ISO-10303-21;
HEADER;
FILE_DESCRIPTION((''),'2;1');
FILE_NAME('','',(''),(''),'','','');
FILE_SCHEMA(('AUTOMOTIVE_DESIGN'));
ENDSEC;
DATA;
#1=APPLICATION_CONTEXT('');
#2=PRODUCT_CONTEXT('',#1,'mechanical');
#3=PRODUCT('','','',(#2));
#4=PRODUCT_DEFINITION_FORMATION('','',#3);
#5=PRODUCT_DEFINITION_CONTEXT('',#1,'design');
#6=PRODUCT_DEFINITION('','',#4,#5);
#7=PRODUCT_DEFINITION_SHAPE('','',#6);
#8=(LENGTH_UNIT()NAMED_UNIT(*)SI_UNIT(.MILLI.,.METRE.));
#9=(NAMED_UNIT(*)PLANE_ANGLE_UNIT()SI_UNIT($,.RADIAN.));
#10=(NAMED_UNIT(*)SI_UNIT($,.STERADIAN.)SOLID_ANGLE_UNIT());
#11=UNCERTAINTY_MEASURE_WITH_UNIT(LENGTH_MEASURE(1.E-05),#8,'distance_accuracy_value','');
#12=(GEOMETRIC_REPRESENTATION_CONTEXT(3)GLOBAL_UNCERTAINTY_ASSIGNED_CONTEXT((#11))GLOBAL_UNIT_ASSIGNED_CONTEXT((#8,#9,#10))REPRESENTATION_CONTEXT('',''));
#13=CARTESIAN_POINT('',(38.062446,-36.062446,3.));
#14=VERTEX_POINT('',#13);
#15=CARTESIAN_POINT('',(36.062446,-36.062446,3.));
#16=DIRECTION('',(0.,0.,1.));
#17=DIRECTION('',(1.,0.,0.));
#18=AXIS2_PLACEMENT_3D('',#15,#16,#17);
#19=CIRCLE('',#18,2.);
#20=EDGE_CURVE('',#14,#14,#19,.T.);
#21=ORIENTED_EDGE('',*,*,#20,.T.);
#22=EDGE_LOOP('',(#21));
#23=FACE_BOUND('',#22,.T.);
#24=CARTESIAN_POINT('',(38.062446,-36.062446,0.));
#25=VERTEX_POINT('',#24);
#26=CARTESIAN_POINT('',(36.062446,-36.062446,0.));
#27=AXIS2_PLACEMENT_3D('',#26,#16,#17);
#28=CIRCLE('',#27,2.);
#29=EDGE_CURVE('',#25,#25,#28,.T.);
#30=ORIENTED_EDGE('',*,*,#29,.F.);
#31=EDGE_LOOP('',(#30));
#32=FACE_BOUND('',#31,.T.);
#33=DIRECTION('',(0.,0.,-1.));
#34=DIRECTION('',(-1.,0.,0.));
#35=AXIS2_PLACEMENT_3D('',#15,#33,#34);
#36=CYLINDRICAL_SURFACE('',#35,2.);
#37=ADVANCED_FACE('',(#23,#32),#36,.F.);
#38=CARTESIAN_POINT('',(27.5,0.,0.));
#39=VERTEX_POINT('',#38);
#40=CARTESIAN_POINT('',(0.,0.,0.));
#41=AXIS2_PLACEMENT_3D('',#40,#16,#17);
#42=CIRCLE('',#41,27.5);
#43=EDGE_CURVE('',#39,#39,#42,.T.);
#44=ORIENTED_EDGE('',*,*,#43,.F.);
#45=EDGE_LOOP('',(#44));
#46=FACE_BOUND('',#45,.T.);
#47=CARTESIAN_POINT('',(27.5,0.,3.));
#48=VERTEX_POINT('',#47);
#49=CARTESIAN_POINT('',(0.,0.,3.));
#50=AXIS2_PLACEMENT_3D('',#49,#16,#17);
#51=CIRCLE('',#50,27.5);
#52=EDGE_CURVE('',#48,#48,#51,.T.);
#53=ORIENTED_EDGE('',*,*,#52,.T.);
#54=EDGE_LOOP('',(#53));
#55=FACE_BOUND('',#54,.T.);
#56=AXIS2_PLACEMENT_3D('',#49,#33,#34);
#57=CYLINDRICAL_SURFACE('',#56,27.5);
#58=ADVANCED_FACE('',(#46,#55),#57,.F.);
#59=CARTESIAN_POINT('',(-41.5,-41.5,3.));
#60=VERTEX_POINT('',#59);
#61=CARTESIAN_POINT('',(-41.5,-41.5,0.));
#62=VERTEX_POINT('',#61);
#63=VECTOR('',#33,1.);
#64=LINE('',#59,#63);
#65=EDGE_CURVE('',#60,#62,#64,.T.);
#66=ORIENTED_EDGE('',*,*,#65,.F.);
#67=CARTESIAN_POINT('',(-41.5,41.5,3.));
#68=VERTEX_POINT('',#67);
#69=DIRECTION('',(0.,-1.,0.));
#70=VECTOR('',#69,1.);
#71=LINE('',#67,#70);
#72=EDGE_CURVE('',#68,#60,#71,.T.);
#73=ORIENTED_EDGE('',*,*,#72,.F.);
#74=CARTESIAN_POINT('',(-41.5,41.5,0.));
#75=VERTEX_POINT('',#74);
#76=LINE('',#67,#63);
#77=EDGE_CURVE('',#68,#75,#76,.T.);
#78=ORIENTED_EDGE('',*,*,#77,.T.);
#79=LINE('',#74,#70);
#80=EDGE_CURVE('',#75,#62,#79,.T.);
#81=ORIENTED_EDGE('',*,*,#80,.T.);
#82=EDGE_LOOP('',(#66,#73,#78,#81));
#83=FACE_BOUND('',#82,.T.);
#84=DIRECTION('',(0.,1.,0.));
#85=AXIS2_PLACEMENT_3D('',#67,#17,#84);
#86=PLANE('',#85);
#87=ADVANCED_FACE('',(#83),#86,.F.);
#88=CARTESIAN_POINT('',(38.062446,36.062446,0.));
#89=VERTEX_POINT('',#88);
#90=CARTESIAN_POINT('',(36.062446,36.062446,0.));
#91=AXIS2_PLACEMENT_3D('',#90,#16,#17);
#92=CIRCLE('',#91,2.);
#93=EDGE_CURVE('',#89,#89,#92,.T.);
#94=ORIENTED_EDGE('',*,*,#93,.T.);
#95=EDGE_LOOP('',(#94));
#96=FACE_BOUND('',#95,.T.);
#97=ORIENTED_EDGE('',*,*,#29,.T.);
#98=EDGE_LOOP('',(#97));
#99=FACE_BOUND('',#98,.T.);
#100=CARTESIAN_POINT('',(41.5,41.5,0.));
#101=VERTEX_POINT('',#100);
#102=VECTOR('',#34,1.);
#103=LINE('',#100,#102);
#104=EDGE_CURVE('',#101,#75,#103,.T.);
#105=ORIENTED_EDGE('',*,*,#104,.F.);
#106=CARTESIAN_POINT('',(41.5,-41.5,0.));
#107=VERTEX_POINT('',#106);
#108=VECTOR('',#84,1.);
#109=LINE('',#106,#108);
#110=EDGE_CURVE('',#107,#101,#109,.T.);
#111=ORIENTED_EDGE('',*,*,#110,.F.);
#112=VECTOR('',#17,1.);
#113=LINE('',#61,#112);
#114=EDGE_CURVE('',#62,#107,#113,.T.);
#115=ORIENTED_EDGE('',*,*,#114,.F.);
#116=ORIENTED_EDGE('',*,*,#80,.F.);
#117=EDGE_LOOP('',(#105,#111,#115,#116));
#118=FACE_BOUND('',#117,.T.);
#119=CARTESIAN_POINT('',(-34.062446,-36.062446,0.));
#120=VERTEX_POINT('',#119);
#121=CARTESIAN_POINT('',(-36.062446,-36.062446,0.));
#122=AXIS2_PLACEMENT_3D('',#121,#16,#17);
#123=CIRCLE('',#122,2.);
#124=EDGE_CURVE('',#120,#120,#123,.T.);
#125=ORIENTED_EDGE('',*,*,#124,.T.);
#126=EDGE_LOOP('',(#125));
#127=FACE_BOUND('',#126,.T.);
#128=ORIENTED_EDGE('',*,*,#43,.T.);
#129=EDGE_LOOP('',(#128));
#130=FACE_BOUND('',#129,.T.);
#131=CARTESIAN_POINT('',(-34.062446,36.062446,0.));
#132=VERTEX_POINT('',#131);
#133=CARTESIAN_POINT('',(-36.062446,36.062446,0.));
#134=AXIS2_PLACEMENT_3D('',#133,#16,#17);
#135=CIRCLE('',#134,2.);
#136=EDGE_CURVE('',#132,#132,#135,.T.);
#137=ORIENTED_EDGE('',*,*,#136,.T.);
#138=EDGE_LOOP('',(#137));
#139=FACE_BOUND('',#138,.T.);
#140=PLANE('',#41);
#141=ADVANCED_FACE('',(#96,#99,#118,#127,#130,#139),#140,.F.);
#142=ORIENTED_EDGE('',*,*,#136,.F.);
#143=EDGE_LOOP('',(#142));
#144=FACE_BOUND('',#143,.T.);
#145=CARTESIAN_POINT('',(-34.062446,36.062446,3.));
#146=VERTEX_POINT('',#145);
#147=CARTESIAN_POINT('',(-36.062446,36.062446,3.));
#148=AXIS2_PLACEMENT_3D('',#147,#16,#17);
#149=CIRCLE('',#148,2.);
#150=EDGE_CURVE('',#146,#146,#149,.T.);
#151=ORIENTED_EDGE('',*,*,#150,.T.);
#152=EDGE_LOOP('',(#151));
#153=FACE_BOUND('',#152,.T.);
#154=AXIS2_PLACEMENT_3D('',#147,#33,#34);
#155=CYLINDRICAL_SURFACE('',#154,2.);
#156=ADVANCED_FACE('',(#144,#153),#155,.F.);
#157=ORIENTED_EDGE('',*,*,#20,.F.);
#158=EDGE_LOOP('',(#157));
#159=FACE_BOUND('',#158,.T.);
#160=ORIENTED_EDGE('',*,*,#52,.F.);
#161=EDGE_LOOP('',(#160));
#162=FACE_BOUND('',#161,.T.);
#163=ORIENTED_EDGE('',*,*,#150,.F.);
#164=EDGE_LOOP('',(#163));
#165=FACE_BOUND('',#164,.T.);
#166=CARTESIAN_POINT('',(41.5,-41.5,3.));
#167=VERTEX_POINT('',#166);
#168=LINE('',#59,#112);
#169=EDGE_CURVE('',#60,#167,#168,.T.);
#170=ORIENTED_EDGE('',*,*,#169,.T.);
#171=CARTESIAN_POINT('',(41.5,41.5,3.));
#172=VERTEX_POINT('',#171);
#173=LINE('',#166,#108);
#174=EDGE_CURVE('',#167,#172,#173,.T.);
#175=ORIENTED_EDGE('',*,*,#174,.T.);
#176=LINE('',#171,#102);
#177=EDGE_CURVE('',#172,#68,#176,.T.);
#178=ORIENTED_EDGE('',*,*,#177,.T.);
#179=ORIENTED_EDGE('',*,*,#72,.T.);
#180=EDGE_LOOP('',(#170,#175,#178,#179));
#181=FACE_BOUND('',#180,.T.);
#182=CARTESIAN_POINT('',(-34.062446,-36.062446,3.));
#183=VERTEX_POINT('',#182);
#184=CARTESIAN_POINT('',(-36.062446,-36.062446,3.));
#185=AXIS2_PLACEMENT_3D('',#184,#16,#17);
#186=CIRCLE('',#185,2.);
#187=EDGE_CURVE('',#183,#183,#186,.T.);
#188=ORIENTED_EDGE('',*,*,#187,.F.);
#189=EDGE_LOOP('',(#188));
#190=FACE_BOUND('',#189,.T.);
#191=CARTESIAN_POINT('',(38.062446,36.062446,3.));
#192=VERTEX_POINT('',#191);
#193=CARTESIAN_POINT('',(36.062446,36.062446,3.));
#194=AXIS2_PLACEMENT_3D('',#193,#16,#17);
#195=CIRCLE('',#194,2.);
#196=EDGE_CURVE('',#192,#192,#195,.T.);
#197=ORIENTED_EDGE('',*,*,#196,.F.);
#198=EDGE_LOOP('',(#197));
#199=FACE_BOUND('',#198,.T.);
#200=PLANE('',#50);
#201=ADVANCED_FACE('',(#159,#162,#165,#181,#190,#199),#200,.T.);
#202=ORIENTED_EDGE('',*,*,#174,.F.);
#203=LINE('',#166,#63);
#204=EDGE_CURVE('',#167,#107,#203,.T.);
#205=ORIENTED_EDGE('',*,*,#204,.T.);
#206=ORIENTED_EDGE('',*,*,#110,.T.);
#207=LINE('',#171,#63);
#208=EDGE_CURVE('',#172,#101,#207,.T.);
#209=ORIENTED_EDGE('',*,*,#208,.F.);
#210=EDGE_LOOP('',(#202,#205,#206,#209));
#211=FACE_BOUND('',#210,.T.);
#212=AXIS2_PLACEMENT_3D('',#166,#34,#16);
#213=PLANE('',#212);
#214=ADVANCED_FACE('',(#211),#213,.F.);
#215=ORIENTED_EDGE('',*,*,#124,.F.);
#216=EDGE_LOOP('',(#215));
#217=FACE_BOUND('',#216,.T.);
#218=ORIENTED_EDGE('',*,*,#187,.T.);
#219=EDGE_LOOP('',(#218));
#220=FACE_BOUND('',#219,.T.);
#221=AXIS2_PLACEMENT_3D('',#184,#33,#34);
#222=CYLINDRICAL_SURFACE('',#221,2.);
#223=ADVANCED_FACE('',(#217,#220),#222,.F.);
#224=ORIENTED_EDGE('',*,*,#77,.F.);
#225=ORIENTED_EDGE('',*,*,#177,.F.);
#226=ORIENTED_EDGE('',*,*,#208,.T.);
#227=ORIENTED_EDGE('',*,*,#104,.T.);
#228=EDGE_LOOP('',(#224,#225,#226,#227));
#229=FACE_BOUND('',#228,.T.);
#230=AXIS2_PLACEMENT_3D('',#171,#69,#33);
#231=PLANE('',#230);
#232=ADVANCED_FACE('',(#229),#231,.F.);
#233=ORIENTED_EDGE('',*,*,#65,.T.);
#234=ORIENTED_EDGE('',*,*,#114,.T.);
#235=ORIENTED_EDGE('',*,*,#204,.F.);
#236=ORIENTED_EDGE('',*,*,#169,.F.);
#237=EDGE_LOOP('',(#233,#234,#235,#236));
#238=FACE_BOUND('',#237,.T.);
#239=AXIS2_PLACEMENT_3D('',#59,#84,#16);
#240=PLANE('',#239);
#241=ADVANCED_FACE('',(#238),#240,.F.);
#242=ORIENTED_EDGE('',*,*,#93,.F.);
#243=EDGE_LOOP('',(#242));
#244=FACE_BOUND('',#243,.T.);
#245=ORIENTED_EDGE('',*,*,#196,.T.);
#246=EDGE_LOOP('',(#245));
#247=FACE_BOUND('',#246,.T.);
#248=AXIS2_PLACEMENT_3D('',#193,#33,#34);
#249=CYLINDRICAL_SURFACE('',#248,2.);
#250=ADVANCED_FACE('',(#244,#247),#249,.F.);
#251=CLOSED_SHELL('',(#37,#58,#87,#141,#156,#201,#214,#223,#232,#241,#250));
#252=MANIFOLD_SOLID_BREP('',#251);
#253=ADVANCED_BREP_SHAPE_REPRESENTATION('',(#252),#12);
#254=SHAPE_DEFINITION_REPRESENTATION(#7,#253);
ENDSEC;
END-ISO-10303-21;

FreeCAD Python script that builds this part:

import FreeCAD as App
import Part
import Sketcher

V = App.Vector
Q = App.Units.Quantity


def add_polygon(sketch, points):
    """Adds a closed chain of lines whose ends are joined by coincident constraints."""
    first, n = sketch.GeometryCount, len(points)
    for a, b in zip(points, points[1:] + points[:1]):
        sketch.addGeometry(Part.LineSegment(App.Vector(*a, 0), App.Vector(*b, 0)), False)
    for i in range(n):
        sketch.addConstraint(Sketcher.Constraint("Coincident", first + i, 2, first + (i + 1) % n, 1))

doc = App.newDocument("Part")
body = doc.addObject("PartDesign::Body", "Body")

# Sketch on XY plane
sketch1 = body.newObject("Sketcher::SketchObject", "Sketch")
sketch1.AttachmentSupport = (doc.getObject("XY_Plane"), [""])
sketch1.MapMode = "FlatFace"
add_polygon(sketch1, [(-41.5, -41.5), (41.5, -41.5), (41.5, 41.5), (-41.5, 41.5)])  # lines 0-3
sketch1.addGeometry(Part.Circle(V(36.1, -36.1, 0), V(0, 0, 1), 2), False)  # 4
sketch1.addGeometry(Part.Circle(V(36.1, 36.1, 0), V(0, 0, 1), 2), False)  # 5
sketch1.addGeometry(Part.Circle(V(-36.1, -36.1, 0), V(0, 0, 1), 2), False)  # 6
sketch1.addGeometry(Part.Circle(V(0, 0, 0), V(0, 0, 1), 27.5), False)  # 7
sketch1.addGeometry(Part.Circle(V(-36.1, 36.1, 0), V(0, 0, 1), 2), False)  # 8
sketch1.addConstraint([
    Sketcher.Constraint("Horizontal", 0),
    Sketcher.Constraint("Vertical", 1),
    Sketcher.Constraint("Horizontal", 2),
    Sketcher.Constraint("Vertical", 3),
    Sketcher.Constraint("Coincident", 7, 3, -1, 1),
    Sketcher.Constraint("Equal", 4, 5),
    Sketcher.Constraint("Equal", 5, 6),
    Sketcher.Constraint("Equal", 6, 8),
    Sketcher.Constraint("Symmetric", 5, 3, 6, 3, -1, 1),
    Sketcher.Constraint("Symmetric", 4, 3, 8, 3, -1, 1),
    Sketcher.Constraint("Symmetric", 0, 2, 2, 2, -1, 1),
    Sketcher.Constraint("Symmetric", 4, 3, 6, 3, -2),
    Sketcher.Constraint("Equal", 2, 1),
    Sketcher.Constraint("Diameter", 4, Q("4 mm")),
    Sketcher.Constraint("Diameter", 7, Q("55 mm")),
    Sketcher.Constraint("DistanceX", 0, 1, 0, 2, Q("83 mm")),
    Sketcher.Constraint("DistanceY", 4, 3, 5, 3, Q("72.124892 mm")),
    Sketcher.Constraint("DistanceX", 6, 3, 4, 3, Q("72.124892 mm")),
])
pad1 = body.newObject("PartDesign::Pad", "Pad")
pad1.Profile = sketch1
pad1.Length = 3

doc.recompute()
